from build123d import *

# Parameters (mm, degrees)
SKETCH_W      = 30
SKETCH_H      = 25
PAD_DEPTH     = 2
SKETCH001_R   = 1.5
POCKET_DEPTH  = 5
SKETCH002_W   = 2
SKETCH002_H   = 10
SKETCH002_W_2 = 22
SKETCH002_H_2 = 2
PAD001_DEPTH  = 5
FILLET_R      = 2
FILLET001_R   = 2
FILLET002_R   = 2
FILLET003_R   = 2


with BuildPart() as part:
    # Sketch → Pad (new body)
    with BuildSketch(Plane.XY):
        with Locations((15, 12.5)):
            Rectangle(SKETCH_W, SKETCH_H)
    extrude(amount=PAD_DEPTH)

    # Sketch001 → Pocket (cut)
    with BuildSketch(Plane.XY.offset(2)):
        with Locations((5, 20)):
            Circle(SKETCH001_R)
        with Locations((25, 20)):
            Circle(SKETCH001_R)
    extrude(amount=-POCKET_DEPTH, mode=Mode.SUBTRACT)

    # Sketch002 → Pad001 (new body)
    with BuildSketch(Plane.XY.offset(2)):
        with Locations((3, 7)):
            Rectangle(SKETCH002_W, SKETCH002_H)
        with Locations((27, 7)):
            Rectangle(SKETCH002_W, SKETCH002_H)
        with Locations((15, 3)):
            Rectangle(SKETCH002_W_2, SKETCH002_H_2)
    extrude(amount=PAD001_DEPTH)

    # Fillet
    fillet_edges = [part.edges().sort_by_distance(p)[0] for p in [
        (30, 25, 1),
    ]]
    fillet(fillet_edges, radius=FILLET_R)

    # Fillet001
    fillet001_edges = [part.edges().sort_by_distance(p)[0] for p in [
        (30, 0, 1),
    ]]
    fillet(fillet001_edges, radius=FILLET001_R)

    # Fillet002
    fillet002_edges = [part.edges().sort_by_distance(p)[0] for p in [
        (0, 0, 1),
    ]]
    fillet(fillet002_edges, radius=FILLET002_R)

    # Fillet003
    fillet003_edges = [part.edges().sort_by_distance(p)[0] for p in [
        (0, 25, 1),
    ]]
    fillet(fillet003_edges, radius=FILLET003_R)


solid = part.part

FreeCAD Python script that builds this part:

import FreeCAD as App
import Part
import Sketcher


def edges_at(feature, points):
    """Names of the edges that pass closest to the given points."""
    edges = feature.Shape.Edges
    near = lambda p: min(range(len(edges)), key=lambda i: edges[i].distToShape(Part.Vertex(*p))[0])
    return sorted({f"Edge{near(p) + 1}" for p in points})


def add_polygon(sketch, points):
    """Adds a closed chain of lines whose ends are joined by coincident constraints."""
    first, n = sketch.GeometryCount, len(points)
    for a, b in zip(points, points[1:] + points[:1]):
        sketch.addGeometry(Part.LineSegment(App.Vector(*a, 0), App.Vector(*b, 0)), False)
    for i in range(n):
        sketch.addConstraint(Sketcher.Constraint("Coincident", first + i, 2, first + (i + 1) % n, 1))

doc = App.newDocument("Part")
body = doc.addObject("PartDesign::Body", "Body")

# Sketch on XY plane
sketch1 = doc.addObject("Sketcher::SketchObject", "Sketch")
body.addObject(sketch1)
sketch1.AttachmentSupport = (doc.XY_Plane, [""])
sketch1.MapMode = "FlatFace"
add_polygon(sketch1, [(0, 25), (0, 0), (30, 0), (30, 25)])  # lines 0-3
sketch1.addConstraint([
    Sketcher.Constraint("Vertical", 0),
    Sketcher.Constraint("Horizontal", 1),
    Sketcher.Constraint("Vertical", 2),
    Sketcher.Constraint("Horizontal", 3),
    Sketcher.Constraint("Coincident", 0, 2, -1, 1),
    Sketcher.Constraint("DistanceX", 1, 1, 1, 2, 30.0),
    Sketcher.Constraint("DistanceY", 0, 2, 0, 1, 25.0),
])
pad1 = doc.addObject("PartDesign::Pad", "Pad")
body.addObject(pad1)
pad1.Profile = sketch1
pad1.Length = 2

# Sketch on XY plane
sketch2 = doc.addObject("Sketcher::SketchObject", "Sketch001")
body.addObject(sketch2)
sketch2.AttachmentSupport = (doc.XY_Plane, [""])
sketch2.MapMode = "FlatFace"
sketch2.AttachmentOffset = App.Placement(App.Vector(0, 0, 2), App.Rotation())
sketch2.addGeometry([
    Part.Circle(App.Vector(5, 20, 0), App.Vector(0, 0, 1), 1.5),
    Part.Circle(App.Vector(25, 20, 0), App.Vector(0, 0, 1), 1.5),
], False)
sketch2.addConstraint([
    Sketcher.Constraint("Equal", 0, 1),
    Sketcher.Constraint("Horizontal", 0, 3, 1, 3),
    Sketcher.Constraint("Diameter", 0, 3.0),
    Sketcher.Constraint("DistanceX", -1, 1, 0, 3, 5.0),
    Sketcher.Constraint("DistanceY", -1, 1, 0, 3, 20.0),
    Sketcher.Constraint("DistanceX", -1, 1, 1, 3, 25.0),
])
pocket1 = doc.addObject("PartDesign::Pocket", "Pocket")
body.addObject(pocket1)
pocket1.Profile = sketch2
pocket1.Length = 5

# Sketch on XY plane
sketch3 = doc.addObject("Sketcher::SketchObject", "Sketch002")
body.addObject(sketch3)
sketch3.AttachmentSupport = (doc.XY_Plane, [""])
sketch3.MapMode = "FlatFace"
sketch3.AttachmentOffset = App.Placement(App.Vector(0, 0, 2), App.Rotation())
add_polygon(sketch3, [(2, 12), (2, 2), (28, 2), (28, 12), (26, 12), (26, 4), (4, 4), (4, 12)])  # lines 0-7
sketch3.addConstraint([
    Sketcher.Constraint("Vertical", 0),
    Sketcher.Constraint("Horizontal", 1),
    Sketcher.Constraint("Vertical", 2),
    Sketcher.Constraint("Horizontal", 3),
    Sketcher.Constraint("Vertical", 4),
    Sketcher.Constraint("Horizontal", 5),
    Sketcher.Constraint("Vertical", 6),
    Sketcher.Constraint("Horizontal", 7),
    Sketcher.Constraint("Horizontal", 3, 2, 6, 2),
    Sketcher.Constraint("Equal", 3, 7),
    Sketcher.Constraint("DistanceX", 1, 1, 1, 2, 26.0),
    Sketcher.Constraint("DistanceX", 3, 2, 3, 1, 2.0),
    Sketcher.Constraint("DistanceY", 0, 2, 0, 1, 10.0),
    Sketcher.Constraint("DistanceY", 4, 2, 4, 1, 8.0),
    Sketcher.Constraint("DistanceX", -1, 1, 0, 2, 2.0),
    Sketcher.Constraint("DistanceY", -1, 1, 0, 2, 2.0),
])
pad2 = doc.addObject("PartDesign::Pad", "Pad001")
body.addObject(pad2)
pad2.Profile = sketch3
pad2.Length = 5
doc.recompute()

fillet = doc.addObject("PartDesign::Fillet", "Fillet")
body.addObject(fillet)
fillet.Base = (pad2, edges_at(pad2, [(30, 25, 1)]))
fillet.Radius = 2
doc.recompute()

fillet2 = doc.addObject("PartDesign::Fillet", "Fillet001")
body.addObject(fillet2)
fillet2.Base = (fillet, edges_at(fillet, [(30, 0, 1)]))
fillet2.Radius = 2
doc.recompute()

fillet3 = doc.addObject("PartDesign::Fillet", "Fillet002")
body.addObject(fillet3)
fillet3.Base = (fillet2, edges_at(fillet2, [(0, 0, 1)]))
fillet3.Radius = 2
doc.recompute()

fillet4 = doc.addObject("PartDesign::Fillet", "Fillet003")
body.addObject(fillet4)
fillet4.Base = (fillet3, edges_at(fillet3, [(0, 25, 1)]))
fillet4.Radius = 2

doc.recompute()
